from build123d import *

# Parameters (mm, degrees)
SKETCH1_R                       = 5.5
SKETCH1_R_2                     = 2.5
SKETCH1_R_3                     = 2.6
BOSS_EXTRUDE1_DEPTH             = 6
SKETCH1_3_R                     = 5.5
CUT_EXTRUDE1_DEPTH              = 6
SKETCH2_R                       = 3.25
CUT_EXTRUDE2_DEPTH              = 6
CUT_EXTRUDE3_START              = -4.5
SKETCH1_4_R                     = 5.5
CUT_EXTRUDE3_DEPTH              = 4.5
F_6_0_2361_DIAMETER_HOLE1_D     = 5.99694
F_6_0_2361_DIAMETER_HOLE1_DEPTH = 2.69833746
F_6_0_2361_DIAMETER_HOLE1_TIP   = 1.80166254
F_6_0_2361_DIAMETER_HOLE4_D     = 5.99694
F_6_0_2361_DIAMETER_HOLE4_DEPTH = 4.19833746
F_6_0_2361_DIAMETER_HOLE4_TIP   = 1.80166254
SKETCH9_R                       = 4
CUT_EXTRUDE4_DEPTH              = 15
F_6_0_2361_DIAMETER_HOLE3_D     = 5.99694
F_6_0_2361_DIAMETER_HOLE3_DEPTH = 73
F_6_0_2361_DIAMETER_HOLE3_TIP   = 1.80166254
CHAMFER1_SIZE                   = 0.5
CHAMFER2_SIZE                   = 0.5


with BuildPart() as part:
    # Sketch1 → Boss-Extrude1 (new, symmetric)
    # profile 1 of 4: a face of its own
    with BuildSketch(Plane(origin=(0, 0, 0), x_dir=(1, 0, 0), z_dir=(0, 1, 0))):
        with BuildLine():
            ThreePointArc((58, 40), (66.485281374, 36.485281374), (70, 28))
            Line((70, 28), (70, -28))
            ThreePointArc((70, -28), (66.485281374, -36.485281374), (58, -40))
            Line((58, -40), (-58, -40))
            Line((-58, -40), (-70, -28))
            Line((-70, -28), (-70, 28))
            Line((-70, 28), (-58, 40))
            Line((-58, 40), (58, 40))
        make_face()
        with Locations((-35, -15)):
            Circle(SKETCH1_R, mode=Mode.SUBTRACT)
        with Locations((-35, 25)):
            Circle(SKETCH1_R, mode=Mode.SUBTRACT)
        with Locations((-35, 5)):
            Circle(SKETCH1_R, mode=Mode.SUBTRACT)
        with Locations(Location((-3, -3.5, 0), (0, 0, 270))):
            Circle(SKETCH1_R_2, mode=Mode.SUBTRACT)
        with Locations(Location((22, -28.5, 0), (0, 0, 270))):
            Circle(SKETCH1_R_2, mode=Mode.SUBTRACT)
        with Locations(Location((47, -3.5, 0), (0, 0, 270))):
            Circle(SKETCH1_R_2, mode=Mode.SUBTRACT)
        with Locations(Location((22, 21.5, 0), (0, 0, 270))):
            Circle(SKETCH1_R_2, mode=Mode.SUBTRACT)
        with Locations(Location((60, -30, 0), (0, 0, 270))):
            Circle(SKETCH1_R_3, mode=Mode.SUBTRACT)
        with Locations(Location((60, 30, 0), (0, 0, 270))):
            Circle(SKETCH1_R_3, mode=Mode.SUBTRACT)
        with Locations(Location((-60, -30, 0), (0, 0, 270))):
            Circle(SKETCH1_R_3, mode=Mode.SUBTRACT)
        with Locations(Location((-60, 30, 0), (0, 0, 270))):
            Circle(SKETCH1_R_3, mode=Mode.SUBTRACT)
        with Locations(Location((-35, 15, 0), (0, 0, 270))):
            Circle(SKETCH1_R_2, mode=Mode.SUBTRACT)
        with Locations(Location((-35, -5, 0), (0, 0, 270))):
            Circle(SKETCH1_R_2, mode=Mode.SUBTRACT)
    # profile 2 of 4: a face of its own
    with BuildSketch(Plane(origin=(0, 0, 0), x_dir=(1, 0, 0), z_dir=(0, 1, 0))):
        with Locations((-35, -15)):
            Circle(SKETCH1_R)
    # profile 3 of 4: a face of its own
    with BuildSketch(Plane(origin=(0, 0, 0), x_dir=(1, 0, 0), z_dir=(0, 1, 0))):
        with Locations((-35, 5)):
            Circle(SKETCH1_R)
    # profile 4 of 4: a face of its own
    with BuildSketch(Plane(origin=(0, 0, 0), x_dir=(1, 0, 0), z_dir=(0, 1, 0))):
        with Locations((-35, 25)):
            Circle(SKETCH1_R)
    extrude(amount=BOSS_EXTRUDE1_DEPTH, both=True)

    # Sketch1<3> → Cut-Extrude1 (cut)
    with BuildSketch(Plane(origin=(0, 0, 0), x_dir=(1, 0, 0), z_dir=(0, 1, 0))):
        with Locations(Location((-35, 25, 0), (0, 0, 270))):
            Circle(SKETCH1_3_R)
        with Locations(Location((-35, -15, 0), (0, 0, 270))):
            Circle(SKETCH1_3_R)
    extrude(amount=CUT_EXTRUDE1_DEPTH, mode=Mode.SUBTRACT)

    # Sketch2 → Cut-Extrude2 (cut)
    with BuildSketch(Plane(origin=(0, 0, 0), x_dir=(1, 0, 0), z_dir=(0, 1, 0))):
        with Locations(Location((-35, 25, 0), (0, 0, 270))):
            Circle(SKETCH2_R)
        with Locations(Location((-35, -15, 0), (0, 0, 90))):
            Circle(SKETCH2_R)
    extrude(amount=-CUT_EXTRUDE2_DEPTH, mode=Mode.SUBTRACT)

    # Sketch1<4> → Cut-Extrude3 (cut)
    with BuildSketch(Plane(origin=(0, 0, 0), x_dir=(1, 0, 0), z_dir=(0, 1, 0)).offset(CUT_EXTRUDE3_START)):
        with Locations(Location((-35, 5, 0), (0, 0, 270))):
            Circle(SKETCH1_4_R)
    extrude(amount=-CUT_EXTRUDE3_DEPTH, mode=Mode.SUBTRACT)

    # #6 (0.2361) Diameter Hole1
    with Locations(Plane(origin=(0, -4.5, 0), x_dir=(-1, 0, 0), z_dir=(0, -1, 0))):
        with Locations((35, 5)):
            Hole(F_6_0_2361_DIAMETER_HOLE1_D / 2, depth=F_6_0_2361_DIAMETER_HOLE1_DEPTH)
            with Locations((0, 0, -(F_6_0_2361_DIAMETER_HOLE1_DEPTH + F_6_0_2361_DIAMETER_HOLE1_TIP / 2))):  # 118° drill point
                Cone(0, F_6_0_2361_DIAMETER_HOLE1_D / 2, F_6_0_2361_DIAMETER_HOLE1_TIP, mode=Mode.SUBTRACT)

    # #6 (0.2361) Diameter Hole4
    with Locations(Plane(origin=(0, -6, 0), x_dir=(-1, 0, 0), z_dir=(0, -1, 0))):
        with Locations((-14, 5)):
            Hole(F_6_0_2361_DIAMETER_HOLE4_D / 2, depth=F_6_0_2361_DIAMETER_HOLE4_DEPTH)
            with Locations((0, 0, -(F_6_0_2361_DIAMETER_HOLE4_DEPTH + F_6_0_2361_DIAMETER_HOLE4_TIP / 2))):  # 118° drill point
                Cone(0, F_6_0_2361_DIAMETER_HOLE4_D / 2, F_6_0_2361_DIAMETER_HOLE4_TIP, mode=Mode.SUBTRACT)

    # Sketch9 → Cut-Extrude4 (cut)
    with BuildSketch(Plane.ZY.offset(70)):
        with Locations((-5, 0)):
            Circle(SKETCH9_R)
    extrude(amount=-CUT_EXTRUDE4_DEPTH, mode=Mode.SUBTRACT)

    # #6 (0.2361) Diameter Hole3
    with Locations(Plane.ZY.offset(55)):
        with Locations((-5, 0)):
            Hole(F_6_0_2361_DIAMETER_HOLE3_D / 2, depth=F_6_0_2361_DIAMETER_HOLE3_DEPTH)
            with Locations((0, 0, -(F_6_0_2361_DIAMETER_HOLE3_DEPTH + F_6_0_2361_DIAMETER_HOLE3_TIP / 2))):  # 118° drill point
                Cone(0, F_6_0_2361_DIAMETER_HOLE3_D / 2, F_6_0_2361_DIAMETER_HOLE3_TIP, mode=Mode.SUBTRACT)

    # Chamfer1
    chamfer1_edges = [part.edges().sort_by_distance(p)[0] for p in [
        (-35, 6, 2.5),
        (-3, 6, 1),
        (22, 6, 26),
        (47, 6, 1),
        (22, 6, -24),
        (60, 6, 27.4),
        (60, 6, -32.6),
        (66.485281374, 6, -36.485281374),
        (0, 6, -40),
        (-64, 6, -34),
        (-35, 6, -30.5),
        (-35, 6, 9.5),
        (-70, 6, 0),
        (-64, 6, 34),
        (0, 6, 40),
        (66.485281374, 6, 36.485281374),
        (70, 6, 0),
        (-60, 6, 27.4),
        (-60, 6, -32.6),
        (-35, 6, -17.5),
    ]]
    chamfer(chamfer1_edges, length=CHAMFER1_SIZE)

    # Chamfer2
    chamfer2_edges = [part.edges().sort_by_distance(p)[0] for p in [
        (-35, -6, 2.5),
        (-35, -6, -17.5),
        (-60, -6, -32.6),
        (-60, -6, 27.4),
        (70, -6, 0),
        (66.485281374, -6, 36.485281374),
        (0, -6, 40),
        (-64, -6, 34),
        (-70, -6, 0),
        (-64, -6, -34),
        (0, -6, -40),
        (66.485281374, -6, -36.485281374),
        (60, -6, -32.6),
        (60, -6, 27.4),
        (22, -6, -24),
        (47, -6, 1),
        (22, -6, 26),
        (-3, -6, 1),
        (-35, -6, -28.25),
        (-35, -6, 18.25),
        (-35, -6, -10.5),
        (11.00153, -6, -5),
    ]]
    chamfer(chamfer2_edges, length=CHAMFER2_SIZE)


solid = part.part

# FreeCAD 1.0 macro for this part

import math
import FreeCAD as App
import Part
import Sketcher

V = App.Vector


def edges_at(feature, points):
    """Names of the edges that pass closest to the given points."""
    edges = feature.Shape.Edges
    near = lambda p: min(range(len(edges)), key=lambda i: edges[i].distToShape(Part.Vertex(*p))[0])
    return sorted({f"Edge{near(p) + 1}" for p in points})

doc = App.newDocument("Part")
body = doc.addObject("PartDesign::Body", "Body")

sketch1 = body.newObject("Sketcher::SketchObject", "Sketch")
sketch1.AttachmentSupport = (doc.getObject("XZ_Plane"), [""])
sketch1.MapMode = "FlatFace"
sketch1.addGeometry([
    Part.ArcOfCircle(Part.Circle(V(58, -28, 0), V(0, 0, 1), 12), math.radians(-90), math.radians(0)),
    Part.LineSegment(V(58, -40, 0), V(-58, -40, 0)),
    Part.LineSegment(V(-58, -40, 0), V(-70, -28, 0)),
    Part.LineSegment(V(-70, -28, 0), V(-70, 28, 0)),
    Part.LineSegment(V(-70, 28, 0), V(-58, 40, 0)),
    Part.LineSegment(V(-58, 40, 0), V(58, 40, 0)),
    Part.ArcOfCircle(Part.Circle(V(58, 28, 0), V(0, 0, 1), 12), math.radians(0), math.radians(90)),
    Part.LineSegment(V(70, 28, 0), V(70, -28, 0)),
    Part.Circle(V(60, 30, 0), V(0, 0, 1), 2.6),
    Part.Circle(V(22, 28.5, 0), V(0, 0, 1), 2.5),
    Part.Circle(V(47, 3.5, 0), V(0, 0, 1), 2.5),
    Part.Circle(V(-60, 30, 0), V(0, 0, 1), 2.6),
    Part.Circle(V(-3, 3.5, 0), V(0, 0, 1), 2.5),
    Part.Circle(V(-35, 5, 0), V(0, 0, 1), 2.5),
    Part.Circle(V(60, -30, 0), V(0, 0, 1), 2.6),
    Part.Circle(V(22, -21.5, 0), V(0, 0, 1), 2.5),
    Part.Circle(V(-35, -15, 0), V(0, 0, 1), 2.5),
    Part.Circle(V(-60, -30, 0), V(0, 0, 1), 2.6),
], False)
sketch1.addConstraint([
    Sketcher.Constraint("Tangent", 0, 1, 1, 1),
    Sketcher.Constraint("Coincident", 1, 2, 2, 1),
    Sketcher.Constraint("Coincident", 2, 2, 3, 1),
    Sketcher.Constraint("Coincident", 3, 2, 4, 1),
    Sketcher.Constraint("Coincident", 4, 2, 5, 1),
    Sketcher.Constraint("Tangent", 5, 2, 6, 2),
    Sketcher.Constraint("Tangent", 6, 1, 7, 1),
    Sketcher.Constraint("Tangent", 7, 2, 0, 2),
    Sketcher.Constraint("Horizontal", 1),
    Sketcher.Constraint("Vertical", 3),
    Sketcher.Constraint("Horizontal", 5),
    Sketcher.Constraint("Vertical", 7),
    Sketcher.Constraint("Equal", 0, 6),
    Sketcher.Constraint("Equal", 9, 10),
    Sketcher.Constraint("Equal", 8, 11),
    Sketcher.Constraint("Equal", 10, 12),
    Sketcher.Constraint("Equal", 12, 13),
    Sketcher.Constraint("Equal", 11, 14),
    Sketcher.Constraint("Equal", 13, 15),
    Sketcher.Constraint("Equal", 15, 16),
    Sketcher.Constraint("Equal", 14, 17),
    Sketcher.Constraint("Symmetric", 11, 3, 14, 3, -1, 1),
    Sketcher.Constraint("Symmetric", 8, 3, 17, 3, -1, 1),
    Sketcher.Constraint("Symmetric", 0, 1, 4, 2, -1, 1),
    Sketcher.Constraint("Symmetric", 2, 2, 6, 1, -1, 1),
    Sketcher.Constraint("Symmetric", 8, 3, 11, 3, -2),
    Sketcher.Constraint("Perpendicular", 2, 4),
    Sketcher.Constraint("Horizontal", 10, 3, 12, 3),
    Sketcher.Constraint("Horizontal", 6, 3, 3, 2),
    Sketcher.Constraint("Vertical", 9, 3, 15, 3),
    Sketcher.Constraint("Vertical", 13, 3, 16, 3),
    Sketcher.Constraint("Diameter", 9, 5.0),
    Sketcher.Constraint("Radius", 0, 12.0),
    Sketcher.Constraint("Diameter", 8, 5.2),
    Sketcher.Constraint("DistanceX", 1, 2, 1, 1, 116.0),
    Sketcher.Constraint("DistanceY", 3, 1, 3, 2, 56.0),
    Sketcher.Constraint("DistanceX", -1, 1, 8, 3, 60.0),
    Sketcher.Constraint("DistanceY", -1, 1, 8, 3, 30.0),
    Sketcher.Constraint("DistanceX", -1, 1, 9, 3, 22.0),
    Sketcher.Constraint("DistanceX", -1, 1, 10, 3, 47.0),
    Sketcher.Constraint("DistanceX", 12, 3, -1, 1, 3.0),
    Sketcher.Constraint("DistanceX", 13, 3, -1, 1, 35.0),
    Sketcher.Constraint("DistanceY", -1, 1, 13, 3, 5.0),
    Sketcher.Constraint("DistanceY", 16, 3, -1, 1, 15.0),
    Sketcher.Constraint("DistanceY", 10, 3, 9, 3, 25.0),
    Sketcher.Constraint("DistanceY", 15, 3, 10, 3, 25.0),
    Sketcher.Constraint("DistanceY", -1, 1, 9, 3, 28.5),
])
pad1 = body.newObject("PartDesign::Pad", "Pad")
pad1.Profile = sketch1
pad1.Length = 12
pad1.Midplane = True

sketch2 = body.newObject("Sketcher::SketchObject", "Sketch001")
sketch2.AttachmentSupport = (doc.getObject("XZ_Plane"), [""])
sketch2.MapMode = "FlatFace"
sketch2.addGeometry([
    Part.Circle(V(-35, -25, 0), V(0, 0, 1), 6),
    Part.Circle(V(-35, 15, 0), V(0, 0, 1), 6),
], False)
sketch2.addConstraint([
    Sketcher.Constraint("Equal", 0, 1),
    Sketcher.Constraint("Vertical", 0, 3, 1, 3),
    Sketcher.Constraint("Diameter", 0, 11.0),
    Sketcher.Constraint("DistanceX", 0, 3, -1, 1, 35.0),
    Sketcher.Constraint("DistanceY", 0, 3, -1, 1, 25.0),
    Sketcher.Constraint("DistanceY", -1, 1, 1, 3, 15.0),
])
pocket1 = body.newObject("PartDesign::Pocket", "Pocket")
pocket1.Profile = sketch2
pocket1.Length = 6

sketch3 = body.newObject("Sketcher::SketchObject", "Sketch002")
sketch3.AttachmentSupport = (doc.getObject("XZ_Plane"), [""])
sketch3.MapMode = "FlatFace"
sketch3.addGeometry([
    Part.Circle(V(-35, -25, 0), V(0, 0, 1), 3.2),
    Part.Circle(V(-35, 15, 0), V(0, 0, 1), 3.2),
], False)
sketch3.addConstraint([
    Sketcher.Constraint("Equal", 0, 1),
    Sketcher.Constraint("Vertical", 0, 3, 1, 3),
    Sketcher.Constraint("Diameter", 0, 6.5),
    Sketcher.Constraint("DistanceX", 0, 3, -1, 1, 35.0),
    Sketcher.Constraint("DistanceY", 0, 3, -1, 1, 25.0),
    Sketcher.Constraint("DistanceY", -1, 1, 1, 3, 15.0),
])
pocket2 = body.newObject("PartDesign::Pocket", "Pocket001")
pocket2.Profile = sketch3
pocket2.Length = 6
pocket2.Reversed = True

sketch4 = body.newObject("Sketcher::SketchObject", "Sketch003")
sketch4.AttachmentSupport = (doc.getObject("XZ_Plane"), [""])
sketch4.MapMode = "FlatFace"
sketch4.AttachmentOffset = App.Placement(V(0, 0, 4.5), App.Rotation())
sketch4.addGeometry(Part.Circle(V(-35, -5, 0), V(0, 0, 1), 6), False)
sketch4.addConstraint([
    Sketcher.Constraint("Diameter", 0, 11.0),
    Sketcher.Constraint("DistanceX", 0, 3, -1, 1, 35.0),
    Sketcher.Constraint("DistanceY", 0, 3, -1, 1, 5.0),
])
pocket3 = body.newObject("PartDesign::Pocket", "Pocket002")
pocket3.Profile = sketch4
pocket3.Length = 4.5
pocket3.Reversed = True

sketch5 = body.newObject("Sketcher::SketchObject", "Sketch004")
sketch5.AttachmentSupport = (doc.getObject("XZ_Plane"), [""])
sketch5.MapMode = "FlatFace"
sketch5.AttachmentOffset = App.Placement(V(0, 0, 4.5), App.Rotation())
sketch5.addGeometry(Part.Circle(V(-35, -5, 0), V(0, 0, 1), 3), False)
sketch5.addConstraint([
    Sketcher.Constraint("DistanceX", 0, 3, -1, 1, 35.0),
    Sketcher.Constraint("DistanceY", 0, 3, -1, 1, 5.0),
    Sketcher.Constraint("Diameter", 0, 5.99694),
])
doc.recompute()
hole = body.newObject("PartDesign::Hole", "Hole")
hole.Profile = sketch5
hole.ThreadType = "None"
hole.Diameter = 5.99694
hole.DepthType = "Dimension"
hole.Depth = 2.698337
hole.DrillPoint = "Angled"
hole.DrillPointAngle = 118

sketch6 = body.newObject("Sketcher::SketchObject", "Sketch005")
sketch6.AttachmentSupport = (doc.getObject("XZ_Plane"), [""])
sketch6.MapMode = "FlatFace"
sketch6.AttachmentOffset = App.Placement(V(0, 0, 6), App.Rotation())
sketch6.addGeometry(Part.Circle(V(14, -5, 0), V(0, 0, 1), 3), False)
sketch6.addConstraint([
    Sketcher.Constraint("DistanceX", -1, 1, 0, 3, 14.0),
    Sketcher.Constraint("DistanceY", 0, 3, -1, 1, 5.0),
    Sketcher.Constraint("Diameter", 0, 5.99694),
])
doc.recompute()
hole2 = body.newObject("PartDesign::Hole", "Hole001")
hole2.Profile = sketch6
hole2.ThreadType = "None"
hole2.Diameter = 5.99694
hole2.DepthType = "Dimension"
hole2.Depth = 4.198337
hole2.DrillPoint = "Angled"
hole2.DrillPointAngle = 118

sketch7 = body.newObject("Sketcher::SketchObject", "Sketch006")
sketch7.AttachmentSupport = (doc.getObject("YZ_Plane"), [""])
sketch7.MapMode = "FlatFace"
sketch7.AttachmentOffset = App.Placement(V(0, 0, -70), App.Rotation())
sketch7.addGeometry(Part.Circle(V(0, -5, 0), V(0, 0, 1), 4), False)
sketch7.addConstraint([
    Sketcher.Constraint("PointOnObject", 0, 3, -2),
    Sketcher.Constraint("Diameter", 0, 8.0),
    Sketcher.Constraint("DistanceY", 0, 3, -1, 1, 5.0),
])
pocket4 = body.newObject("PartDesign::Pocket", "Pocket003")
pocket4.Profile = sketch7
pocket4.Length = 15
pocket4.Reversed = True

sketch8 = body.newObject("Sketcher::SketchObject", "Sketch007")
sketch8.AttachmentSupport = (doc.getObject("YZ_Plane"), [""])
sketch8.MapMode = "FlatFace"
sketch8.AttachmentOffset = App.Placement(V(0, 0, -55), App.Rotation())
sketch8.addGeometry(Part.Circle(V(0, -5, 0), V(0, 0, 1), 3), False)
sketch8.addConstraint([
    Sketcher.Constraint("PointOnObject", 0, 3, -2),
    Sketcher.Constraint("DistanceY", 0, 3, -1, 1, 5.0),
    Sketcher.Constraint("Diameter", 0, 5.99694),
])
doc.recompute()
hole3 = body.newObject("PartDesign::Hole", "Hole002")
hole3.Profile = sketch8
hole3.ThreadType = "None"
hole3.Diameter = 5.99694
hole3.DepthType = "Dimension"
hole3.Depth = 73
hole3.DrillPoint = "Angled"
hole3.DrillPointAngle = 118
hole3.Reversed = True
doc.recompute()

chamfer = body.newObject("PartDesign::Chamfer", "Chamfer")
chamfer.Base = (hole3, edges_at(hole3, [
    (-35, 6, 2.5),
    (-3, 6, 1),
    (22, 6, 26),
    (47, 6, 1),
    (22, 6, -24),
    (60, 6, 27.4),
    (60, 6, -32.6),
    (66.485, 6, -36.485),
    (0, 6, -40),
    (-64, 6, -34),
    (-35, 6, -30.5),
    (-35, 6, 9.5),
    (-70, 6, 0),
    (-64, 6, 34),
    (0, 6, 40),
    (66.485, 6, 36.485),
    (70, 6, 0),
    (-60, 6, 27.4),
    (-60, 6, -32.6),
    (-35, 6, -17.5),
]))
chamfer.Size = 0.5
doc.recompute()

chamfer2 = body.newObject("PartDesign::Chamfer", "Chamfer001")
chamfer2.Base = (chamfer, edges_at(chamfer, [
    (-35, -6, 2.5),
    (-35, -6, -17.5),
    (-60, -6, -32.6),
    (-60, -6, 27.4),
    (70, -6, 0),
    (66.485, -6, 36.485),
    (0, -6, 40),
    (-64, -6, 34),
    (-70, -6, 0),
    (-64, -6, -34),
    (0, -6, -40),
    (66.485, -6, -36.485),
    (60, -6, -32.6),
    (60, -6, 27.4),
    (22, -6, -24),
    (47, -6, 1),
    (22, -6, 26),
    (-3, -6, 1),
    (-35, -6, -28.25),
    (-35, -6, 18.25),
    (-35, -6, -10.5),
    (11.002, -6, -5),
]))
chamfer2.Size = 0.5

doc.recompute()
